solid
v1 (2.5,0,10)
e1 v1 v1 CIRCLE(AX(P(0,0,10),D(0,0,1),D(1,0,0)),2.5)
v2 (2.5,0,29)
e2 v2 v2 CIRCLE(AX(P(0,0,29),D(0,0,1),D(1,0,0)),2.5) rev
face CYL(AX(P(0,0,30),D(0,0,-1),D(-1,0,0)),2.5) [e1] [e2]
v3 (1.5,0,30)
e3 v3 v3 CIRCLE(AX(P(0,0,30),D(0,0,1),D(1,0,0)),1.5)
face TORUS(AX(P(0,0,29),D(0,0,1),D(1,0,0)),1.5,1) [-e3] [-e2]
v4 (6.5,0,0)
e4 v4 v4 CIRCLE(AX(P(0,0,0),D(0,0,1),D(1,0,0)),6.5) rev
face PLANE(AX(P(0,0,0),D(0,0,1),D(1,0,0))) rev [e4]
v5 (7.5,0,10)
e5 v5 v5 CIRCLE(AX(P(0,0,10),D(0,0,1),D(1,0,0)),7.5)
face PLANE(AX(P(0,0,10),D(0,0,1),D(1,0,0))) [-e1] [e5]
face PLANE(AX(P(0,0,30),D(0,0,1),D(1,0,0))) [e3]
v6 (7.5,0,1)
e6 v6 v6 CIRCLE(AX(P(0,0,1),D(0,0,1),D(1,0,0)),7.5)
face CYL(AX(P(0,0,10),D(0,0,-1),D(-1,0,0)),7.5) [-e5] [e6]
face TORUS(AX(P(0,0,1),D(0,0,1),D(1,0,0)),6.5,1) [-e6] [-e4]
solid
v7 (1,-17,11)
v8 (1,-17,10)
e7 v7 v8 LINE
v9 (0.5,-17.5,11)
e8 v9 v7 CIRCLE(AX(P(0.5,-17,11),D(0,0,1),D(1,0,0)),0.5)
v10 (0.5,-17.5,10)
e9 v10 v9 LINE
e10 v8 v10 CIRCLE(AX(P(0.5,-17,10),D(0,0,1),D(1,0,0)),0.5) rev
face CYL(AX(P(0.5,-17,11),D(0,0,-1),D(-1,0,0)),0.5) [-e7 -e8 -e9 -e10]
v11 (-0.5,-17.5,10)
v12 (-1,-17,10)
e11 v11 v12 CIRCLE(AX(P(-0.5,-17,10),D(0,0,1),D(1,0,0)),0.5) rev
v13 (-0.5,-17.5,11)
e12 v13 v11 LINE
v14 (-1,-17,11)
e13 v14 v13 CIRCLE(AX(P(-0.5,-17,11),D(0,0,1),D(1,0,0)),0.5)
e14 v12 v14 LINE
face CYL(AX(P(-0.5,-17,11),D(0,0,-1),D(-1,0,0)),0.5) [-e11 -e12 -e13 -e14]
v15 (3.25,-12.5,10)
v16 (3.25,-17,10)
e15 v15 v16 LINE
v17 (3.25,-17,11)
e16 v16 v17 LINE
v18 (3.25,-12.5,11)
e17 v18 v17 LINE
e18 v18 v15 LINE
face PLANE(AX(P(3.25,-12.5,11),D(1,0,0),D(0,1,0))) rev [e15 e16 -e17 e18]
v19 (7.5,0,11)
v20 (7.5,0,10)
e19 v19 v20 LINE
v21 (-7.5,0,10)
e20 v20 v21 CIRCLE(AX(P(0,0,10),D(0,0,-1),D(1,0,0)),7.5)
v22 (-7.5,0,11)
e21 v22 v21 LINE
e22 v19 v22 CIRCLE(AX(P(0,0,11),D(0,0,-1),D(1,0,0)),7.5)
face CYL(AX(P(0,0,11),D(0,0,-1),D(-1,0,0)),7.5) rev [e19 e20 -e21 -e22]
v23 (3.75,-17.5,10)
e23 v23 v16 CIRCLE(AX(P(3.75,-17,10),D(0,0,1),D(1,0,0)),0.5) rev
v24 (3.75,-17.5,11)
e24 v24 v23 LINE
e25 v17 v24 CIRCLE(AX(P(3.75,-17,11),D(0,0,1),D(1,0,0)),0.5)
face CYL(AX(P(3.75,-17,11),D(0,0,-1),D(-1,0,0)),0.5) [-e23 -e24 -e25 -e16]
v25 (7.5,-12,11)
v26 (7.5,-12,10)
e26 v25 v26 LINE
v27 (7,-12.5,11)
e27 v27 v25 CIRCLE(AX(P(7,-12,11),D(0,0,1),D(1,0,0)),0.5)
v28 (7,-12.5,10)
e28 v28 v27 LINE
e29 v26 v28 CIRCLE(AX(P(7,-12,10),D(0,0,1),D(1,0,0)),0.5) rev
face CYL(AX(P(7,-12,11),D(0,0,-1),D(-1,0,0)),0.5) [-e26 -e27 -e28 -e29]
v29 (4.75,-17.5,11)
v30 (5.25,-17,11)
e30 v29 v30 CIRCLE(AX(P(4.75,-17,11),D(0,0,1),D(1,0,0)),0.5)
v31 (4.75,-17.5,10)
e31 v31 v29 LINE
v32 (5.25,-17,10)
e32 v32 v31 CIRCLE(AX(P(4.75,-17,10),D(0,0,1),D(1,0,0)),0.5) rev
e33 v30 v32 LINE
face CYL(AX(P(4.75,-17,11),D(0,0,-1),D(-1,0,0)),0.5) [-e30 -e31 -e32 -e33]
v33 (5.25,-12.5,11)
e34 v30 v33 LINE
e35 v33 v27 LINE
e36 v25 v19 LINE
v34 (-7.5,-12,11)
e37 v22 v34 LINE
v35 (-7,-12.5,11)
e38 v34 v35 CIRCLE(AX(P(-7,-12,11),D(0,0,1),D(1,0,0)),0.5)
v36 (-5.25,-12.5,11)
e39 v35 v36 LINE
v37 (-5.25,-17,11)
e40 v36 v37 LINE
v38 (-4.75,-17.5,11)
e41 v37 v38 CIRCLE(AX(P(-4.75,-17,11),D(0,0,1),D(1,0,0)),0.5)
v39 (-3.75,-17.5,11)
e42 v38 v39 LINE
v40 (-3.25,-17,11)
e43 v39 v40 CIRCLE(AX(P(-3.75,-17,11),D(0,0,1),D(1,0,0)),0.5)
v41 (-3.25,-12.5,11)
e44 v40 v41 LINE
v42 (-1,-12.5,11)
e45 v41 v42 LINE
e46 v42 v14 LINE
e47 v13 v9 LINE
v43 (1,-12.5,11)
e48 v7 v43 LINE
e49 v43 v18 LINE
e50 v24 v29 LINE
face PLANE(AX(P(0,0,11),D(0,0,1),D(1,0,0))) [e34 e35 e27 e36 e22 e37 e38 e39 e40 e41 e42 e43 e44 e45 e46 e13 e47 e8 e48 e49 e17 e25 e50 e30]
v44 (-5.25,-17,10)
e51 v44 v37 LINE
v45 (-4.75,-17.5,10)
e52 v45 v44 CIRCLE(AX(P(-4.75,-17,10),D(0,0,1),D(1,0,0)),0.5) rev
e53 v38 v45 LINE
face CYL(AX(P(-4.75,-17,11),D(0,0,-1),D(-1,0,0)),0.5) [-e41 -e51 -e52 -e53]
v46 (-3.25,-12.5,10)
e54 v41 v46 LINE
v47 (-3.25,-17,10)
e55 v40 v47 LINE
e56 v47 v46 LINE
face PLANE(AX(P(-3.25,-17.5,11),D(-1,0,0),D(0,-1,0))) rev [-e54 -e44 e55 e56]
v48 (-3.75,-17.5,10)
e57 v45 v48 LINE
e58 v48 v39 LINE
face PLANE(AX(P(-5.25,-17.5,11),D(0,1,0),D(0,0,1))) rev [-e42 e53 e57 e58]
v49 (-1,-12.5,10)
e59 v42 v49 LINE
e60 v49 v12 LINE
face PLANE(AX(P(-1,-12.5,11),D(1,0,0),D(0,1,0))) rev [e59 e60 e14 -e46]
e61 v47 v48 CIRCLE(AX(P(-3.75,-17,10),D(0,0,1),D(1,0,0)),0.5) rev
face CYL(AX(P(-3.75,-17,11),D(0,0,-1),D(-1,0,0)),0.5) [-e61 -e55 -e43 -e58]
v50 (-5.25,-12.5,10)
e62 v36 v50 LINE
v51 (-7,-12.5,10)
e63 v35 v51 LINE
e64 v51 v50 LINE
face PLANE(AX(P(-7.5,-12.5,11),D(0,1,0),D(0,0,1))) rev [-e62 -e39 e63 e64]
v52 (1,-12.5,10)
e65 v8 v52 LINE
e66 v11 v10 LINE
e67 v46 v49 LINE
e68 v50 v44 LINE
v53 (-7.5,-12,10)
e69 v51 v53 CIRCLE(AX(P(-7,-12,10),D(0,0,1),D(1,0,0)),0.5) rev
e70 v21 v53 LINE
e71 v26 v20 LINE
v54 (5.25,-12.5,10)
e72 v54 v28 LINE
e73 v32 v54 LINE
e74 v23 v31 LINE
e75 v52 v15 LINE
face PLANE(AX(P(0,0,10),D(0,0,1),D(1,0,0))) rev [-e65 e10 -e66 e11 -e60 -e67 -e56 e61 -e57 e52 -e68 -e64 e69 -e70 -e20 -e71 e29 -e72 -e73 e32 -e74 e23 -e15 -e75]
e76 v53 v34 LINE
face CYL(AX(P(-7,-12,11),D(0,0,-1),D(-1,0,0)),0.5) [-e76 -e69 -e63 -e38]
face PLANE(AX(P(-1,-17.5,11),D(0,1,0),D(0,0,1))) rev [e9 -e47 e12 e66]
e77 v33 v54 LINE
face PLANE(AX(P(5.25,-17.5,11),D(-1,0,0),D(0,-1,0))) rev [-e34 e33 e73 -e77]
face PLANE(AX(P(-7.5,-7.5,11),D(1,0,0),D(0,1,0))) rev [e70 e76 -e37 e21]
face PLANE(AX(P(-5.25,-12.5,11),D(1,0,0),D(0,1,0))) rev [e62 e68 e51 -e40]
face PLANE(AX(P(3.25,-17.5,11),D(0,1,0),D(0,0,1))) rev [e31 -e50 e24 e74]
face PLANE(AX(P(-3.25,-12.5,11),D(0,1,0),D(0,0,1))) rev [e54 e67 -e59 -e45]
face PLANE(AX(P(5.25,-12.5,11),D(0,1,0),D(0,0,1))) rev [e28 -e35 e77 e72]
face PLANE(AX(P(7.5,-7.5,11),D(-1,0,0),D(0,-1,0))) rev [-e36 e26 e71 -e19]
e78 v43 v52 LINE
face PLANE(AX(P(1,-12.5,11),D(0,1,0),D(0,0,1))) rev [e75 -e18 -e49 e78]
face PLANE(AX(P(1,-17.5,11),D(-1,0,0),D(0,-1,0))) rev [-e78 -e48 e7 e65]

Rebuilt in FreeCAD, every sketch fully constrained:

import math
import FreeCAD as App
import Part
import Sketcher

V = App.Vector
Q = App.Units.Quantity


def edges_at(feature, points):
    """Names of the edges that pass closest to the given points."""
    edges = feature.Shape.Edges
    near = lambda p: min(range(len(edges)), key=lambda i: edges[i].distToShape(Part.Vertex(*p))[0])
    return sorted({f"Edge{near(p) + 1}" for p in points})

doc = App.newDocument("Part")
body = doc.addObject("PartDesign::Body", "Body")

sketch1 = body.newObject("Sketcher::SketchObject", "Sketch")
sketch1.AttachmentSupport = (doc.getObject("XY_Plane"), [""])
sketch1.MapMode = "FlatFace"
sketch1.addGeometry(Part.Circle(V(0, 0, 0), V(0, 0, 1), 8), False)
sketch1.addConstraint(Sketcher.Constraint("Coincident", 0, 3, -1, 1))
sketch1.addConstraint(Sketcher.Constraint("Diameter", 0, Q("15 mm")))
pad1 = body.newObject("PartDesign::Pad", "Pad")
pad1.Profile = sketch1
pad1.Length = 10

sketch2 = body.newObject("Sketcher::SketchObject", "Sketch001")
sketch2.AttachmentSupport = (doc.getObject("XY_Plane"), [""])
sketch2.MapMode = "FlatFace"
sketch2.AttachmentOffset = App.Placement(V(0, 0, 10), App.Rotation())
sketch2.addGeometry(Part.Circle(V(0, 0, 0), V(0, 0, 1), 2.5), False)
sketch2.addConstraint(Sketcher.Constraint("Coincident", 0, 3, -1, 1))
sketch2.addConstraint(Sketcher.Constraint("Diameter", 0, Q("5 mm")))
pad2 = body.newObject("PartDesign::Pad", "Pad001")
pad2.Profile = sketch2
pad2.Length = 20
doc.recompute()

fillet = body.newObject("PartDesign::Fillet", "Fillet")
fillet.Base = (pad2, edges_at(pad2, [(-7.5, 0, 0)]))
fillet.Radius = 1
doc.recompute()

fillet2 = body.newObject("PartDesign::Fillet", "Fillet001")
fillet2.Base = (fillet, edges_at(fillet, [(-2.5, 0, 30)]))
fillet2.Radius = 1
body2 = doc.addObject("PartDesign::Body", "Body001")

sketch3 = body2.newObject("Sketcher::SketchObject", "Sketch002")
sketch3.AttachmentSupport = (doc.getObject("XY_Plane001"), [""])
sketch3.MapMode = "FlatFace"
sketch3.AttachmentOffset = App.Placement(V(0, 0, 10), App.Rotation())
sketch3.addGeometry(Part.LineSegment(V(-7.5, 0, 0), V(-7.5, -12.5, 0)), False)
sketch3.addGeometry(Part.LineSegment(V(-7.5, -12.5, 0), V(-5.2, -12.5, 0)), False)
sketch3.addGeometry(Part.LineSegment(V(-5.2, -12.5, 0), V(-5.2, -17.5, 0)), False)
sketch3.addGeometry(Part.LineSegment(V(-5.2, -17.5, 0), V(-3.2, -17.5, 0)), False)
sketch3.addGeometry(Part.LineSegment(V(-3.2, -17.5, 0), V(-3.2, -12.5, 0)), False)
sketch3.addGeometry(Part.LineSegment(V(-3.2, -12.5, 0), V(-1, -12.5, 0)), False)
sketch3.addGeometry(Part.LineSegment(V(-1, -12.5, 0), V(-1, -17.5, 0)), False)
sketch3.addGeometry(Part.LineSegment(V(-1, -17.5, 0), V(1, -17.5, 0)), False)
sketch3.addGeometry(Part.LineSegment(V(1, -17.5, 0), V(1, -12.5, 0)), False)
sketch3.addGeometry(Part.LineSegment(V(1, -12.5, 0), V(3.2, -12.5, 0)), False)
sketch3.addGeometry(Part.LineSegment(V(3.2, -12.5, 0), V(3.2, -17.5, 0)), False)
sketch3.addGeometry(Part.LineSegment(V(3.2, -17.5, 0), V(5.2, -17.5, 0)), False)
sketch3.addGeometry(Part.LineSegment(V(5.2, -17.5, 0), V(5.2, -12.5, 0)), False)
sketch3.addGeometry(Part.LineSegment(V(5.2, -12.5, 0), V(7.5, -12.5, 0)), False)
sketch3.addGeometry(Part.LineSegment(V(7.5, -12.5, 0), V(7.5, 0, 0)), False)
sketch3.addGeometry(Part.ArcOfCircle(Part.Circle(V(0, 0, 0), V(0, 0, 1), 7.5), math.radians(180), math.radians(360)), False)
sketch3.addConstraint(Sketcher.Constraint("Coincident", 0, 2, 1, 1))
sketch3.addConstraint(Sketcher.Constraint("Coincident", 1, 2, 2, 1))
sketch3.addConstraint(Sketcher.Constraint("Coincident", 2, 2, 3, 1))
sketch3.addConstraint(Sketcher.Constraint("Coincident", 3, 2, 4, 1))
sketch3.addConstraint(Sketcher.Constraint("Coincident", 4, 2, 5, 1))
sketch3.addConstraint(Sketcher.Constraint("Coincident", 5, 2, 6, 1))
sketch3.addConstraint(Sketcher.Constraint("Coincident", 6, 2, 7, 1))
sketch3.addConstraint(Sketcher.Constraint("Coincident", 7, 2, 8, 1))
sketch3.addConstraint(Sketcher.Constraint("Coincident", 8, 2, 9, 1))
sketch3.addConstraint(Sketcher.Constraint("Coincident", 9, 2, 10, 1))
sketch3.addConstraint(Sketcher.Constraint("Coincident", 10, 2, 11, 1))
sketch3.addConstraint(Sketcher.Constraint("Coincident", 11, 2, 12, 1))
sketch3.addConstraint(Sketcher.Constraint("Coincident", 12, 2, 13, 1))
sketch3.addConstraint(Sketcher.Constraint("Coincident", 13, 2, 14, 1))
sketch3.addConstraint(Sketcher.Constraint("Tangent", 14, 2, 15, 2))
sketch3.addConstraint(Sketcher.Constraint("Tangent", 15, 1, 0, 1))
sketch3.addConstraint(Sketcher.Constraint("Vertical", 0))
sketch3.addConstraint(Sketcher.Constraint("Horizontal", 1))
sketch3.addConstraint(Sketcher.Constraint("Vertical", 2))
sketch3.addConstraint(Sketcher.Constraint("Horizontal", 3))
sketch3.addConstraint(Sketcher.Constraint("Vertical", 4))
sketch3.addConstraint(Sketcher.Constraint("Horizontal", 5))
sketch3.addConstraint(Sketcher.Constraint("Vertical", 6))
sketch3.addConstraint(Sketcher.Constraint("Horizontal", 7))
sketch3.addConstraint(Sketcher.Constraint("Vertical", 8))
sketch3.addConstraint(Sketcher.Constraint("Horizontal", 9))
sketch3.addConstraint(Sketcher.Constraint("Vertical", 10))
sketch3.addConstraint(Sketcher.Constraint("Horizontal", 11))
sketch3.addConstraint(Sketcher.Constraint("Vertical", 12))
sketch3.addConstraint(Sketcher.Constraint("Horizontal", 13))
sketch3.addConstraint(Sketcher.Constraint("Vertical", 14))
sketch3.addConstraint(Sketcher.Constraint("Coincident", 15, 3, -1, 1))
sketch3.addConstraint(Sketcher.Constraint("Symmetric", 5, 2, 8, 2, -2))
sketch3.addConstraint(Sketcher.Constraint("Symmetric", 3, 2, 10, 2, -2))
sketch3.addConstraint(Sketcher.Constraint("Symmetric", 1, 2, 12, 2, -2))
sketch3.addConstraint(Sketcher.Constraint("Horizontal", 1, 2, 4, 2))
sketch3.addConstraint(Sketcher.Constraint("Horizontal", 3, 2, 6, 2))
sketch3.addConstraint(Sketcher.Constraint("Equal", 1, 5))
sketch3.addConstraint(Sketcher.Constraint("Equal", 3, 7))
sketch3.addConstraint(Sketcher.Constraint("Radius", 15, Q("7.5 mm")))
sketch3.addConstraint(Sketcher.Constraint("DistanceX", 3, 1, 3, 2, Q("2 mm")))
sketch3.addConstraint(Sketcher.Constraint("DistanceY", 2, 2, 2, 1, Q("5 mm")))
sketch3.addConstraint(Sketcher.Constraint("DistanceY", 0, 2, 0, 1, Q("12.5 mm")))
pad3 = body2.newObject("PartDesign::Pad", "Pad002")
pad3.Profile = sketch3
pad3.Length = 1
doc.recompute()

fillet3 = body2.newObject("PartDesign::Fillet", "Fillet002")
fillet3.Base = (pad3, edges_at(pad3, [
    (7.5, -12.5, 10.5),
    (5.25, -17.5, 10.5),
    (3.25, -17.5, 10.5),
    (1, -17.5, 10.5),
    (-1, -17.5, 10.5),
    (-3.25, -17.5, 10.5),
    (-5.25, -17.5, 10.5),
    (-7.5, -12.5, 10.5),
]))
fillet3.Radius = 0.5

doc.recompute()
